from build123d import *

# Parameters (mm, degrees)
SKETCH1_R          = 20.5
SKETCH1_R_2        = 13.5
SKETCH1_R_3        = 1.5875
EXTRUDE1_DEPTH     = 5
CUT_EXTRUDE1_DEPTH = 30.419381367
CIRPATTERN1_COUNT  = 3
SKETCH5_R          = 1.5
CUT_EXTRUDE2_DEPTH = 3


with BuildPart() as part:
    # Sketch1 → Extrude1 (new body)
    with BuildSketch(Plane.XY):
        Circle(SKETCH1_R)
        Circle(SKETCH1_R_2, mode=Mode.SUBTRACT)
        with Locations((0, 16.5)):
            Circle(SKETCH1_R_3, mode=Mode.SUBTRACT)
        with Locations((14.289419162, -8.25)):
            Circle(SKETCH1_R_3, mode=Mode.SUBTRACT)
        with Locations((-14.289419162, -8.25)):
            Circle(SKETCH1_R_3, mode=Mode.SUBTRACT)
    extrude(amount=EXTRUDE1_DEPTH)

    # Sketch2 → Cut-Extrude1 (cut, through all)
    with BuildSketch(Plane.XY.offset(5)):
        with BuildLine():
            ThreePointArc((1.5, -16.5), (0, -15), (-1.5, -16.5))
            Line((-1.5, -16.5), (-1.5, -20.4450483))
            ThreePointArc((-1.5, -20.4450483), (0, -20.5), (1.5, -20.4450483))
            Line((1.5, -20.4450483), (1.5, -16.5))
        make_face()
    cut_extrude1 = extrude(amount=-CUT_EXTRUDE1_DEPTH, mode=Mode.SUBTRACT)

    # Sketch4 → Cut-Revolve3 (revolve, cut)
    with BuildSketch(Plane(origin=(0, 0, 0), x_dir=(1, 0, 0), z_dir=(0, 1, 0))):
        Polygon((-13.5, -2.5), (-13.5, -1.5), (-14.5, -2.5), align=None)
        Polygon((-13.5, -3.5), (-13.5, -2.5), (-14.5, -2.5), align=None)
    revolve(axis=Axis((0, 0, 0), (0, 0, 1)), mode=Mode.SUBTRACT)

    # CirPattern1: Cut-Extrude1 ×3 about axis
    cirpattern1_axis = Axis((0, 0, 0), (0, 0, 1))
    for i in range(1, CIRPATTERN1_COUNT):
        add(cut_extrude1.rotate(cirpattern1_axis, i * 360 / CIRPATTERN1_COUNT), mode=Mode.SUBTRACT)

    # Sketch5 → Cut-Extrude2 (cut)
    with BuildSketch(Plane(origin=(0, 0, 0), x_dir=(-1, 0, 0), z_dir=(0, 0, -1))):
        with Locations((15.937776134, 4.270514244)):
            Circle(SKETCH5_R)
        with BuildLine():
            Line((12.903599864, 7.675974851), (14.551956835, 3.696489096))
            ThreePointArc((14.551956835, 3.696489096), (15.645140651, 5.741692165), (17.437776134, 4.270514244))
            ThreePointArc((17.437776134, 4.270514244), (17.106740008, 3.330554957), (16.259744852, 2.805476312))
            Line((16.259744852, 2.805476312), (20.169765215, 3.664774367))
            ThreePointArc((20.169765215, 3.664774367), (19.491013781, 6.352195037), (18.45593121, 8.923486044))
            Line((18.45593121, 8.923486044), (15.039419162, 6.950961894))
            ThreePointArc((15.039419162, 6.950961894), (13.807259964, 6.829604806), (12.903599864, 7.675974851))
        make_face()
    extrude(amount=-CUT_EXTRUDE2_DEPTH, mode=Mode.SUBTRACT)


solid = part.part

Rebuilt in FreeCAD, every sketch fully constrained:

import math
import FreeCAD as App
import Part
import Sketcher
from FreeCAD import Vector
Q = App.Units.Quantity


def add_polygon(sketch, points):
    """Adds a closed chain of lines whose ends are joined by coincident constraints."""
    first, n = sketch.GeometryCount, len(points)
    for a, b in zip(points, points[1:] + points[:1]):
        sketch.addGeometry(Part.LineSegment(App.Vector(*a, 0), App.Vector(*b, 0)), False)
    for i in range(n):
        sketch.addConstraint(Sketcher.Constraint("Coincident", first + i, 2, first + (i + 1) % n, 1))

doc = App.newDocument("Part")
body = doc.addObject("PartDesign::Body", "Body")

# Sketch on XY plane
sketch1 = body.newObject("Sketcher::SketchObject", "Sketch")
sketch1.AttachmentSupport = (doc.getObject("XY_Plane"), [""])
sketch1.MapMode = "FlatFace"
sketch1.addGeometry([
    Part.Circle(Vector(0, 0, 0), Vector(0, 0, 1), 20.5),  # 0
    Part.Circle(Vector(-14.289419, -8.25, 0), Vector(0, 0, 1), 1.5875),  # 1
    Part.Circle(Vector(14.289419, -8.25, 0), Vector(0, 0, 1), 1.5875),  # 2
    Part.Circle(Vector(0, 0, 0), Vector(0, 0, 1), 13.5),  # 3
    Part.Circle(Vector(0, 16.5, 0), Vector(0, 0, 1), 1.5875),  # 4
], False)
sketch1.addConstraint([
    Sketcher.Constraint("Coincident", 0, 3, -1, 1),
    Sketcher.Constraint("Coincident", 3, 3, -1, 1),
    Sketcher.Constraint("Equal", 1, 2),
    Sketcher.Constraint("Equal", 2, 4),
    Sketcher.Constraint("Symmetric", 1, 3, 2, 3, -2),
    Sketcher.Constraint("PointOnObject", 4, 3, -2),
    Sketcher.Constraint("Diameter", 0, 41.0),
    Sketcher.Constraint("Diameter", 3, 27.0),
    Sketcher.Constraint("Diameter", 1, 3.175),
    Sketcher.Constraint("DistanceY", -1, 1, 4, 3, 16.5),
    Sketcher.Constraint("DistanceY", 1, 3, -1, 1, 8.25),
    Sketcher.Constraint("DistanceX", 1, 3, -1, 1, 14.289419),
])
pad1 = body.newObject("PartDesign::Pad", "Pad")
pad1.Profile = sketch1
pad1.Length = 5

# Sketch on XY plane
sketch2 = body.newObject("Sketcher::SketchObject", "Sketch001")
sketch2.AttachmentSupport = (doc.getObject("XY_Plane"), [""])
sketch2.MapMode = "FlatFace"
sketch2.AttachmentOffset = App.Placement(Vector(0, 0, 5), App.Rotation())
sketch2.addGeometry([
    Part.ArcOfCircle(Part.Circle(Vector(0, -16.5, 0), Vector(0, 0, 1), 1.5), math.radians(0), math.radians(180)),
    Part.LineSegment(Vector(-1.5, -16.5, 0), Vector(-1.5, -20.445048, 0)),
    Part.ArcOfCircle(Part.Circle(Vector(0, 0, 0), Vector(0, 0, 1), 20.5), math.radians(-94.196124), math.radians(-85.803876)),
    Part.LineSegment(Vector(1.5, -20.445048, 0), Vector(1.5, -16.5, 0)),
], False)
sketch2.addConstraint([
    Sketcher.Constraint("Tangent", 0, 2, 1, 1),
    Sketcher.Constraint("Coincident", 1, 2, 2, 1),
    Sketcher.Constraint("Coincident", 2, 2, 3, 1),
    Sketcher.Constraint("Tangent", 3, 2, 0, 1),
    Sketcher.Constraint("Vertical", 1),
    Sketcher.Constraint("Vertical", 3),
    Sketcher.Constraint("Coincident", 2, 3, -1, 1),
    Sketcher.Constraint("PointOnObject", 0, 3, -2),
    Sketcher.Constraint("Radius", 0, 1.5),
    Sketcher.Constraint("Radius", 2, 20.5),
    Sketcher.Constraint("DistanceY", 0, 3, -1, 1, 16.5),
])
pocket1 = body.newObject("PartDesign::Pocket", "Pocket")
pocket1.Profile = sketch2
pocket1.Type = "ThroughAll"

# Sketch on XZ plane
sketch3 = body.newObject("Sketcher::SketchObject", "Sketch002")
sketch3.AttachmentSupport = (doc.getObject("XZ_Plane"), [""])
sketch3.MapMode = "FlatFace"
add_polygon(sketch3, [(-13.5, 1.5), (-14.5, 2.5), (-13.5, 3.5)])  # lines 0-2
sketch3.addConstraint([
    Sketcher.Constraint("Vertical", 2),
    Sketcher.Constraint("Perpendicular", 0, 1),
    Sketcher.Constraint("Equal", 0, 1),
    Sketcher.Constraint("DistanceY", 2, 2, 2, 1, 2.0),
    Sketcher.Constraint("DistanceX", 0, 2, -1, 1, 14.5),
    Sketcher.Constraint("DistanceY", -1, 1, 0, 2, 2.5),
])
groove = body.newObject("PartDesign::Groove", "Groove")
groove.Profile = sketch3
groove.ReferenceAxis = (sketch3, ["V_Axis"])
groove.Angle = 360
doc.recompute()

polarpattern = body.newObject("PartDesign::PolarPattern", "PolarPattern")
polarpattern.Originals = [pocket1]
polarpattern.Axis = (doc.getObject("Z_Axis"), [""])
polarpattern.Angle = 360
polarpattern.Occurrences = 3
body.Tip = polarpattern

# Sketch on XY plane
sketch4 = body.newObject("Sketcher::SketchObject", "Sketch003")
sketch4.AttachmentSupport = (doc.getObject("XY_Plane"), [""])
sketch4.MapMode = "FlatFace"
sketch4.addGeometry([
    Part.ArcOfCircle(Part.Circle(Vector(-15.937776, 4.270514, 0), Vector(0, 0, 1), 1.5), math.radians(-102.394749), math.radians(-22.5)),  # 0
    Part.LineSegment(Vector(-16.259745, 2.805476, 0), Vector(-20.169765, 3.664774, 0)),  # 1
    Part.ArcOfCircle(Part.Circle(Vector(0, 0, 0), Vector(0, 0, 1), 20.5), math.radians(154.196124), math.radians(169.701906)),  # 2
    Part.LineSegment(Vector(-18.455931, 8.923486, 0), Vector(-15.039419, 6.950962, 0)),  # 3
    Part.ArcOfCircle(Part.Circle(Vector(-14.289419, 8.25, 0), Vector(0, 0, 1), 1.5), math.radians(-120), math.radians(-22.5)),  # 4
    Part.LineSegment(Vector(-12.9036, 7.675975, 0), Vector(-14.551957, 3.696489, 0)),  # 5
], False)
sketch4.addConstraint([
    Sketcher.Constraint("Tangent", 0, 1, 1, 1),
    Sketcher.Constraint("Coincident", 1, 2, 2, 2),
    Sketcher.Constraint("Coincident", 2, 1, 3, 1),
    Sketcher.Constraint("Tangent", 3, 2, 4, 1),
    Sketcher.Constraint("Tangent", 4, 2, 5, 1),
    Sketcher.Constraint("Tangent", 5, 2, 0, 2),
    Sketcher.Constraint("Coincident", 2, 3, -1, 1),
    Sketcher.Constraint("Equal", 0, 4),
    Sketcher.Constraint("Radius", 0, 1.5),
    Sketcher.Constraint("Radius", 2, 20.5),
    Sketcher.Constraint("Angle", 3, Q("-30 deg")),
    Sketcher.Constraint("Angle", 5, Q("-112.5 deg")),
    Sketcher.Constraint("DistanceY", -1, 1, 4, 3, 8.25),
    Sketcher.Constraint("DistanceX", 4, 2, -1, 1, 12.9036),
    Sketcher.Constraint("DistanceY", 0, 1, 1, 2, 0.859298),
    Sketcher.Constraint("DistanceY", 0, 1, 4, 2, 4.870499),
])
pocket2 = body.newObject("PartDesign::Pocket", "Pocket001")
pocket2.Profile = sketch4
pocket2.Length = 3
pocket2.Reversed = True

doc.recompute()
